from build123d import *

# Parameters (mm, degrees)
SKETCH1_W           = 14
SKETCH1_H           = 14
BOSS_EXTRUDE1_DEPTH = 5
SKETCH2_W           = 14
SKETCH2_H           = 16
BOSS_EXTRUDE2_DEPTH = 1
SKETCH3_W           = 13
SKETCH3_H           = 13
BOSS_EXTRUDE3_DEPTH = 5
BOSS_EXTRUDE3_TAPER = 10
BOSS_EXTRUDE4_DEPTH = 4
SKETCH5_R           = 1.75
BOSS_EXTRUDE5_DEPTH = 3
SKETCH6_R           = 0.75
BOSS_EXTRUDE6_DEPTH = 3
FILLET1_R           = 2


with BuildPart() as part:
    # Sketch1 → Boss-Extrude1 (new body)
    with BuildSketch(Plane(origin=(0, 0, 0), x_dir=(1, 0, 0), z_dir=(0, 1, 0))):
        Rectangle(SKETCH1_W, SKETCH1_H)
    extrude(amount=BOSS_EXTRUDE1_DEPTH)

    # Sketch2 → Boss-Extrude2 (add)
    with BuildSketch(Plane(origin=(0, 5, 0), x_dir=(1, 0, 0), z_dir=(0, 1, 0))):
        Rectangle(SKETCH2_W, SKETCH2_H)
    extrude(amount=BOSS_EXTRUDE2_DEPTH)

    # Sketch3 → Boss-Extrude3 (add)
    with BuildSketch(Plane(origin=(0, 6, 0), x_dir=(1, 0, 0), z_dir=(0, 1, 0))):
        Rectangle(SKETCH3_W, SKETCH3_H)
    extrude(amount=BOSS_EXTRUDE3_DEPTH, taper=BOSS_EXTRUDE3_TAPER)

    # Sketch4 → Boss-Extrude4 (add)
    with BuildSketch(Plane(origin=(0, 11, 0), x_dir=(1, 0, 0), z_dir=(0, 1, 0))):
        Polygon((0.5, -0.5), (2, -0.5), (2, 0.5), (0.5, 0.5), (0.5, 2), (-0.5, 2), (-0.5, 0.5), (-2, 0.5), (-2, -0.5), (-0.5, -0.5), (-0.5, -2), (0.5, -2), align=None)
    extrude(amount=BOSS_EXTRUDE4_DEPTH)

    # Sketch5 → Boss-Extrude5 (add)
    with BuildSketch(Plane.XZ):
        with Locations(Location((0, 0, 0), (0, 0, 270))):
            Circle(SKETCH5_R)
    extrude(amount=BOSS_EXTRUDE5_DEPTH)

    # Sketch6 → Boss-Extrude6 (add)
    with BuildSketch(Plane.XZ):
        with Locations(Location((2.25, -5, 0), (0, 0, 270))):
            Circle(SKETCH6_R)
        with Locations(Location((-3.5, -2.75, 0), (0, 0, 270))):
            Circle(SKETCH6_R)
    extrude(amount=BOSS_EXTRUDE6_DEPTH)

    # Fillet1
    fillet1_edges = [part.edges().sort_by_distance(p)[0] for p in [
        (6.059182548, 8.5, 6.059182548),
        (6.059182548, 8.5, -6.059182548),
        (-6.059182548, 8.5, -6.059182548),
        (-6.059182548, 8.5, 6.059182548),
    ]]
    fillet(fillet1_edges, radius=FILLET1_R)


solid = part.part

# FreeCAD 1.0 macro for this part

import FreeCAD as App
import Part
import Sketcher


def edges_at(feature, points):
    """Names of the edges that pass closest to the given points."""
    edges = feature.Shape.Edges
    near = lambda p: min(range(len(edges)), key=lambda i: edges[i].distToShape(Part.Vertex(*p))[0])
    return sorted({f"Edge{near(p) + 1}" for p in points})


def add_polygon(sketch, points):
    """Adds a closed chain of lines whose ends are joined by coincident constraints."""
    first, n = sketch.GeometryCount, len(points)
    for a, b in zip(points, points[1:] + points[:1]):
        sketch.addGeometry(Part.LineSegment(App.Vector(*a, 0), App.Vector(*b, 0)), False)
    for i in range(n):
        sketch.addConstraint(Sketcher.Constraint("Coincident", first + i, 2, first + (i + 1) % n, 1))

doc = App.newDocument("Part")
body = doc.addObject("PartDesign::Body", "Body")

# Sketch on XZ plane
sketch1 = body.newObject("Sketcher::SketchObject", "Sketch")
sketch1.AttachmentSupport = (doc.getObject("XZ_Plane"), [""])
sketch1.MapMode = "FlatFace"
add_polygon(sketch1, [(-7, -7), (-7, 7), (7, 7), (7, -7)])  # lines 0-3
sketch1.addConstraint([
    Sketcher.Constraint("Vertical", 0),
    Sketcher.Constraint("Horizontal", 1),
    Sketcher.Constraint("Vertical", 2),
    Sketcher.Constraint("Horizontal", 3),
    Sketcher.Constraint("Symmetric", 0, 2, 2, 2, -1, 1),
    Sketcher.Constraint("Equal", 3, 0),
    Sketcher.Constraint("DistanceX", 1, 1, 1, 2, 14.0),
])
pad1 = body.newObject("PartDesign::Pad", "Pad")
pad1.Profile = sketch1
pad1.Length = 5
pad1.Reversed = True

# Sketch on XZ plane
sketch2 = body.newObject("Sketcher::SketchObject", "Sketch001")
sketch2.AttachmentSupport = (doc.getObject("XZ_Plane"), [""])
sketch2.MapMode = "FlatFace"
sketch2.AttachmentOffset = App.Placement(App.Vector(0, 0, -5), App.Rotation())
add_polygon(sketch2, [(-7, -8), (-7, 8), (7, 8), (7, -8)])  # lines 0-3
sketch2.addConstraint([
    Sketcher.Constraint("Vertical", 0),
    Sketcher.Constraint("Horizontal", 1),
    Sketcher.Constraint("Vertical", 2),
    Sketcher.Constraint("Horizontal", 3),
    Sketcher.Constraint("Symmetric", 0, 2, 2, 2, -1, 1),
    Sketcher.Constraint("DistanceX", 1, 1, 1, 2, 14.0),
    Sketcher.Constraint("DistanceY", 0, 1, 0, 2, 16.0),
])
pad2 = body.newObject("PartDesign::Pad", "Pad001")
pad2.Profile = sketch2
pad2.Length = 1
pad2.Reversed = True

# Sketch on XZ plane
sketch3 = body.newObject("Sketcher::SketchObject", "Sketch002")
sketch3.AttachmentSupport = (doc.getObject("XZ_Plane"), [""])
sketch3.MapMode = "FlatFace"
sketch3.AttachmentOffset = App.Placement(App.Vector(0, 0, -6), App.Rotation())
add_polygon(sketch3, [(-6, -6), (-6, 6), (6, 6), (6, -6)])  # lines 0-3
sketch3.addConstraint([
    Sketcher.Constraint("Vertical", 0),
    Sketcher.Constraint("Horizontal", 1),
    Sketcher.Constraint("Vertical", 2),
    Sketcher.Constraint("Horizontal", 3),
    Sketcher.Constraint("Symmetric", 0, 2, 2, 2, -1, 1),
    Sketcher.Constraint("Equal", 3, 0),
    Sketcher.Constraint("DistanceX", 1, 1, 1, 2, 13.0),
])
pad3 = body.newObject("PartDesign::Pad", "Pad002")
pad3.Profile = sketch3
pad3.Length = 5
pad3.Reversed = True
pad3.TaperAngle = -10

# Sketch on XZ plane
sketch4 = body.newObject("Sketcher::SketchObject", "Sketch003")
sketch4.AttachmentSupport = (doc.getObject("XZ_Plane"), [""])
sketch4.MapMode = "FlatFace"
sketch4.AttachmentOffset = App.Placement(App.Vector(0, 0, -11), App.Rotation())
add_polygon(sketch4, [(0.5, 0.5), (2, 0.5), (2, -0.5), (0.5, -0.5), (0.5, -2), (-0.5, -2), (-0.5, -0.5), (-2, -0.5), (-2, 0.5), (-0.5, 0.5), (-0.5, 2), (0.5, 2)])  # lines 0-11
sketch4.addConstraint([
    Sketcher.Constraint("Horizontal", 0),
    Sketcher.Constraint("Vertical", 1),
    Sketcher.Constraint("Horizontal", 2),
    Sketcher.Constraint("Vertical", 3),
    Sketcher.Constraint("Horizontal", 4),
    Sketcher.Constraint("Vertical", 5),
    Sketcher.Constraint("Horizontal", 6),
    Sketcher.Constraint("Vertical", 7),
    Sketcher.Constraint("Horizontal", 8),
    Sketcher.Constraint("Vertical", 9),
    Sketcher.Constraint("Horizontal", 10),
    Sketcher.Constraint("Vertical", 11),
    Sketcher.Constraint("Symmetric", 0, 2, 6, 2, -1, 1),
    Sketcher.Constraint("Symmetric", 2, 2, 8, 2, -1, 1),
    Sketcher.Constraint("Symmetric", 4, 2, 10, 2, -1, 1),
    Sketcher.Constraint("Symmetric", 2, 2, 5, 2, -2),
    Sketcher.Constraint("Equal", 10, 1),
    Sketcher.Constraint("Equal", 8, 3),
    Sketcher.Constraint("DistanceX", 4, 2, 4, 1, 1.0),
    Sketcher.Constraint("DistanceX", 0, 1, 0, 2, 1.5),
])
pad4 = body.newObject("PartDesign::Pad", "Pad003")
pad4.Profile = sketch4
pad4.Length = 4
pad4.Reversed = True

# Sketch on XZ plane
sketch5 = body.newObject("Sketcher::SketchObject", "Sketch004")
sketch5.AttachmentSupport = (doc.getObject("XZ_Plane"), [""])
sketch5.MapMode = "FlatFace"
sketch5.addGeometry(Part.Circle(App.Vector(0, 0, 0), App.Vector(0, 0, 1), 1.8), False)
sketch5.addConstraint([
    Sketcher.Constraint("Coincident", 0, 3, -1, 1),
    Sketcher.Constraint("Diameter", 0, 3.5),
])
pad5 = body.newObject("PartDesign::Pad", "Pad004")
pad5.Profile = sketch5
pad5.Length = 3

# Sketch on XZ plane
sketch6 = body.newObject("Sketcher::SketchObject", "Sketch005")
sketch6.AttachmentSupport = (doc.getObject("XZ_Plane"), [""])
sketch6.MapMode = "FlatFace"
sketch6.addGeometry([
    Part.Circle(App.Vector(2.2, -5, 0), App.Vector(0, 0, 1), 0.8),
    Part.Circle(App.Vector(-3.5, -2.8, 0), App.Vector(0, 0, 1), 0.8),
], False)
sketch6.addConstraint([
    Sketcher.Constraint("Equal", 0, 1),
    Sketcher.Constraint("Diameter", 0, 1.5),
    Sketcher.Constraint("DistanceY", 0, 3, -1, 1, 5.0),
    Sketcher.Constraint("DistanceX", 1, 3, -1, 1, 3.5),
    Sketcher.Constraint("DistanceX", -1, 1, 0, 3, 2.25),
    Sketcher.Constraint("DistanceY", 1, 3, -1, 1, 2.75),
])
pad6 = body.newObject("PartDesign::Pad", "Pad005")
pad6.Profile = sketch6
pad6.Length = 3
doc.recompute()

fillet = body.newObject("PartDesign::Fillet", "Fillet")
fillet.Base = (pad6, edges_at(pad6, [
    (6.059, 8.5, 6.059),
    (6.059, 8.5, -6.059),
    (-6.059, 8.5, -6.059),
    (-6.059, 8.5, 6.059),
]))
fillet.Radius = 2

doc.recompute()
